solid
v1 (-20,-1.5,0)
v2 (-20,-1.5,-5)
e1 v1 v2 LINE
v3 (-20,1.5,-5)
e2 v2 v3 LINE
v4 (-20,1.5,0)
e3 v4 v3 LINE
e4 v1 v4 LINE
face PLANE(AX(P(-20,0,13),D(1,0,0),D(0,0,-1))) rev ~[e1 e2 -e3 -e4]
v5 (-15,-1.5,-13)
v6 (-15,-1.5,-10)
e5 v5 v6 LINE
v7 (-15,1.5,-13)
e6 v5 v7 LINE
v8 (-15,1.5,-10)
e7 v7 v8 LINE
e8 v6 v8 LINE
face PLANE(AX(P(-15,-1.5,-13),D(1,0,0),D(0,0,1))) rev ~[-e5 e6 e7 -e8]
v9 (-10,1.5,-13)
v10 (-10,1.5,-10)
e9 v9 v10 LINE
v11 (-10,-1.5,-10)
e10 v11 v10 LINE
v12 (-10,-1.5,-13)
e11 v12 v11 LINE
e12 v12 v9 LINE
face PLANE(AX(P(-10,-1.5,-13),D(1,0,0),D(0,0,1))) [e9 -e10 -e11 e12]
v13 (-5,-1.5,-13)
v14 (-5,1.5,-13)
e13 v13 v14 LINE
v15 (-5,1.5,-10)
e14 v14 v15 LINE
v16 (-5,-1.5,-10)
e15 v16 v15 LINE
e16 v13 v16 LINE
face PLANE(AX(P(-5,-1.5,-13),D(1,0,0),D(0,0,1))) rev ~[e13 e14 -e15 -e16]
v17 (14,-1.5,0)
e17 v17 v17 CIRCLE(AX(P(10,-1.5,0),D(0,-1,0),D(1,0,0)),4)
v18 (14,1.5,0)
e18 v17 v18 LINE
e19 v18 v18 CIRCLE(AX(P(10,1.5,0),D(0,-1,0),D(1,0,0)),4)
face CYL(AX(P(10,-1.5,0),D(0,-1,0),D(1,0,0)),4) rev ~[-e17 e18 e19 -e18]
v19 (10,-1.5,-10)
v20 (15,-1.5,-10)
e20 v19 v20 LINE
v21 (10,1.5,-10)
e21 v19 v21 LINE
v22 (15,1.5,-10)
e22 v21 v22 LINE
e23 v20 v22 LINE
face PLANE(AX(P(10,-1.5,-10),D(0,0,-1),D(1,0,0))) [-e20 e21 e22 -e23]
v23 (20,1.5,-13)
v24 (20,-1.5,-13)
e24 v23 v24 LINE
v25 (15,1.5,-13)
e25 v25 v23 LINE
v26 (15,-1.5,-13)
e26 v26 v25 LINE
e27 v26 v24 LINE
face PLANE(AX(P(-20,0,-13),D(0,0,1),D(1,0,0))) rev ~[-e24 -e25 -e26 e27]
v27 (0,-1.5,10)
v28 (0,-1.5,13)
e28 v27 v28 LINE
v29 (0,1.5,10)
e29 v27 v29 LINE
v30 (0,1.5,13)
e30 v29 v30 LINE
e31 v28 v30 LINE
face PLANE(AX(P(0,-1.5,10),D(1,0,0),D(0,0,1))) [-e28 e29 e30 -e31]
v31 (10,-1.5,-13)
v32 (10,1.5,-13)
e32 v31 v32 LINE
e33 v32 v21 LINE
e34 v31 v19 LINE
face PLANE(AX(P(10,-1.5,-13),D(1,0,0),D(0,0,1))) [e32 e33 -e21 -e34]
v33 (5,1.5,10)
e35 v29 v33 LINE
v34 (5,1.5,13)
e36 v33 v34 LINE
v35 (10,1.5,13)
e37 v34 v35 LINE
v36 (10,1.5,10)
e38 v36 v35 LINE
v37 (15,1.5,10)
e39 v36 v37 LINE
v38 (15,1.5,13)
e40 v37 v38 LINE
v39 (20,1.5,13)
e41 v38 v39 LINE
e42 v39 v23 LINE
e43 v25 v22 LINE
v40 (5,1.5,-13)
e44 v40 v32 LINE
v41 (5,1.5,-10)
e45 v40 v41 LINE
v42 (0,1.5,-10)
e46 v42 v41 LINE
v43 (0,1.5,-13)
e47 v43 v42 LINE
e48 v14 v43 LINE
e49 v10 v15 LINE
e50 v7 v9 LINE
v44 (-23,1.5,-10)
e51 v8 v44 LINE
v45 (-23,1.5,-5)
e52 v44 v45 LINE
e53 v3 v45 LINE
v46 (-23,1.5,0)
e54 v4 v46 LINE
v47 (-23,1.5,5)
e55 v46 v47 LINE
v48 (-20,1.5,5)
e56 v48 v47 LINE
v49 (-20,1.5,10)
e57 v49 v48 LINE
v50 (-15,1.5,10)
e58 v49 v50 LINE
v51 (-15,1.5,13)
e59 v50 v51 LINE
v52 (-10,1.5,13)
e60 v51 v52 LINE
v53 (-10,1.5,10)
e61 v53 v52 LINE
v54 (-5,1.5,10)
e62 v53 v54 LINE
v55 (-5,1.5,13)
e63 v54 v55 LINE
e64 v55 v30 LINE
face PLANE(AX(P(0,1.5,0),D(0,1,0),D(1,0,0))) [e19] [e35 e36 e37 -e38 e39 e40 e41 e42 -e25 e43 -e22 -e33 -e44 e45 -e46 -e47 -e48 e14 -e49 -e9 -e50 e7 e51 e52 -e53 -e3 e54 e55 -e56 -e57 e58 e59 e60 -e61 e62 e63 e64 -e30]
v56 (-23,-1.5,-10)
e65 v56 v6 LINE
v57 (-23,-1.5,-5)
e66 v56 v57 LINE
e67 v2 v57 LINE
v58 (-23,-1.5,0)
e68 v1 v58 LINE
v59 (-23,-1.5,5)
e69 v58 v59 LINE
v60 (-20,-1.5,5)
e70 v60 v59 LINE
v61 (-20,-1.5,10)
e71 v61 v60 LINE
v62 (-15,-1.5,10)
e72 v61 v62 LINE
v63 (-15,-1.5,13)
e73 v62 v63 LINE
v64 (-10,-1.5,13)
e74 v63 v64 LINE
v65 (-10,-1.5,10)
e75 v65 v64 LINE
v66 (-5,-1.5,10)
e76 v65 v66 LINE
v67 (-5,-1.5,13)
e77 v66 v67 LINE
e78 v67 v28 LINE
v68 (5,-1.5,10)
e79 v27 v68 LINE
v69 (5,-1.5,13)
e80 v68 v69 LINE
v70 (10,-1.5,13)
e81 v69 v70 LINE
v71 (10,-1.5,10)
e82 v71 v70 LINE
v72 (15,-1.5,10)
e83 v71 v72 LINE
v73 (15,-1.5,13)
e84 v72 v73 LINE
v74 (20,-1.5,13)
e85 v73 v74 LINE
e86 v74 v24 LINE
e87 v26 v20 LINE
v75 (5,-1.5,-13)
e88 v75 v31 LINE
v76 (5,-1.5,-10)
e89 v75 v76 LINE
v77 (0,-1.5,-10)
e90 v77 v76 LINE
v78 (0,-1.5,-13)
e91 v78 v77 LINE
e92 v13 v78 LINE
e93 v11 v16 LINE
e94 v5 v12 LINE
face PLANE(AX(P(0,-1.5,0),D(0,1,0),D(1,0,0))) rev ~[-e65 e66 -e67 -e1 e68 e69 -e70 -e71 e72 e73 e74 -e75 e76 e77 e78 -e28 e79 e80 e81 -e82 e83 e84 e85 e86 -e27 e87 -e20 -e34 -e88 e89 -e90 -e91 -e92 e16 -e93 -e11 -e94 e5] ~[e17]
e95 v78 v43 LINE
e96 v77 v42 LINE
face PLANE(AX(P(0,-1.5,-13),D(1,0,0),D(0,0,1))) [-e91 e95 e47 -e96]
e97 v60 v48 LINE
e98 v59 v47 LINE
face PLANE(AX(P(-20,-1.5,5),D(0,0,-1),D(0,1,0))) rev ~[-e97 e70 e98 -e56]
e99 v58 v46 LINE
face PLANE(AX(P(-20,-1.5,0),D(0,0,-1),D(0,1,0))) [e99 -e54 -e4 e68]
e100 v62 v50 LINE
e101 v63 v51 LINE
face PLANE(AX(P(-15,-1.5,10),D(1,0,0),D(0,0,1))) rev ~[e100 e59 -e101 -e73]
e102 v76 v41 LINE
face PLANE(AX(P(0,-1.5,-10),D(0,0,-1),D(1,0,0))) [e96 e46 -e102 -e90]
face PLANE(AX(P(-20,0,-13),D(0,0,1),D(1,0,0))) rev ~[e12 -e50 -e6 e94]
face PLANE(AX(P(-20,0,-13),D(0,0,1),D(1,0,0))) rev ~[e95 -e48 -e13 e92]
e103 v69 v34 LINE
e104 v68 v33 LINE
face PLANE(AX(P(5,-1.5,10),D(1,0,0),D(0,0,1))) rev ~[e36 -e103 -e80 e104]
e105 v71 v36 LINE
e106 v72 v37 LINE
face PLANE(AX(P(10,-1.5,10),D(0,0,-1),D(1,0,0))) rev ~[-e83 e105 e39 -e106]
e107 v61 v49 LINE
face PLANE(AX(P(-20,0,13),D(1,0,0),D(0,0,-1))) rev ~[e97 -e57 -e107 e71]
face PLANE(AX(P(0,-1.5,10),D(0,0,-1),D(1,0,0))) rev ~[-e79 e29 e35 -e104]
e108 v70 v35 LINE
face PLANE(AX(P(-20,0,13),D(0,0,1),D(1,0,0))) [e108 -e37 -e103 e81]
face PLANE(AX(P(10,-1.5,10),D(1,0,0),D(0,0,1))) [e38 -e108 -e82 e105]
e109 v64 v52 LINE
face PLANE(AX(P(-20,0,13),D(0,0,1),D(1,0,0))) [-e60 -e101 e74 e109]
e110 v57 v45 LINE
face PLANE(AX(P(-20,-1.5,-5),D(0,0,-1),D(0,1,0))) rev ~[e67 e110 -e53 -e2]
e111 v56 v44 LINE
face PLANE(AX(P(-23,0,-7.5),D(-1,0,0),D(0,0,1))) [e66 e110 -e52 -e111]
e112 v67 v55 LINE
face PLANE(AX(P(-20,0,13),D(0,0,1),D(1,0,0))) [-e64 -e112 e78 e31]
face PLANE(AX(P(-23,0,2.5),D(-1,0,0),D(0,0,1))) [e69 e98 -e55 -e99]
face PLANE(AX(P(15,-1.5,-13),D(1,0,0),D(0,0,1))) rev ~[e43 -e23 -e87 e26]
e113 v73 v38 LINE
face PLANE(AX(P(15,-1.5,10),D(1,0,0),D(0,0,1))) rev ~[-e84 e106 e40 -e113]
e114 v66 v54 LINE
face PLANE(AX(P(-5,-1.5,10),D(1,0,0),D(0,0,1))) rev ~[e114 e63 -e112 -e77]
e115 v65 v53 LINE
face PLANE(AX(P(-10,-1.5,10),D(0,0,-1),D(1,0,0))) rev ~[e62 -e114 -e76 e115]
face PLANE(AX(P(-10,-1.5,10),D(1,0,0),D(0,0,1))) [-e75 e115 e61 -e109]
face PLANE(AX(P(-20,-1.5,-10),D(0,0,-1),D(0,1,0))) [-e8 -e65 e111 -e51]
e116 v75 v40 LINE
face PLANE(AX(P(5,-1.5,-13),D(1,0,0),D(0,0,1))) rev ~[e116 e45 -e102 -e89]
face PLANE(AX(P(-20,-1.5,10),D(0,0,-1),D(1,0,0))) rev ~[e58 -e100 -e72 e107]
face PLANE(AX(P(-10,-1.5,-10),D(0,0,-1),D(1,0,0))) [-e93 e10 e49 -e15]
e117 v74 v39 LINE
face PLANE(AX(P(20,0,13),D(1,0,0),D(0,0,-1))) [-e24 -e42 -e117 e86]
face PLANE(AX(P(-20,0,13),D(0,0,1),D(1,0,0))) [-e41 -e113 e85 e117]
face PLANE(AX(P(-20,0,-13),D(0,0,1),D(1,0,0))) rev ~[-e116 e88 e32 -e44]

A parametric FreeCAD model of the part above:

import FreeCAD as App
import Part
import Sketcher
from FreeCAD import Vector


def add_polygon(sketch, points):
    """Adds a closed chain of lines whose ends are joined by coincident constraints."""
    first, n = sketch.GeometryCount, len(points)
    for a, b in zip(points, points[1:] + points[:1]):
        sketch.addGeometry(Part.LineSegment(App.Vector(*a, 0), App.Vector(*b, 0)), False)
    for i in range(n):
        sketch.addConstraint(Sketcher.Constraint("Coincident", first + i, 2, first + (i + 1) % n, 1))

doc = App.newDocument("Part")
params = doc.addObject("Spreadsheet::Sheet", "Params")
for row, (alias, value) in enumerate([
    ("sketch1_width", "40 mm"),
    ("sketch1_height", "26 mm"),
    ("pad1_length", "3 mm"),
    ("sketch2_diameter", "8 mm"),
    ("pocket1_length", "3 mm"),
    ("sketch3_width", "3 mm"),
    ("sketch3_height", "5 mm"),
    ("pad2_length", "3 mm"),
    ("sketch4_width", "5 mm"),
    ("sketch4_height", "3 mm"),
    ("pocket2_length", "3 mm"),
], start=1):
    params.set(f"A{row}", alias)
    params.set(f"B{row}", "=" + value)
    params.setAlias(f"B{row}", alias)

body = doc.addObject("PartDesign::Body", "Body")

sketch1 = doc.addObject("Sketcher::SketchObject", "Sketch")
body.addObject(sketch1)
sketch1.AttachmentSupport = (doc.XZ_Plane, [""])
sketch1.MapMode = "FlatFace"
add_polygon(sketch1, [(-20, -13), (-20, 13), (20, 13), (20, -13)])
sketch1.addConstraint(Sketcher.Constraint("Vertical", 0))
sketch1.addConstraint(Sketcher.Constraint("Horizontal", 1))
sketch1.addConstraint(Sketcher.Constraint("Vertical", 2))
sketch1.addConstraint(Sketcher.Constraint("Horizontal", 3))
sketch1.addConstraint(Sketcher.Constraint("Symmetric", 0, 2, 2, 2, -1, 1))
sketch1.addConstraint(Sketcher.Constraint("DistanceX", 1, 1, 1, 2, 40.0))
sketch1.addConstraint(Sketcher.Constraint("DistanceY", 0, 1, 0, 2, 26.0))
sketch1.setExpression("Constraints[9]", "Params.sketch1_width")
sketch1.setExpression("Constraints[10]", "Params.sketch1_height")
pad1 = doc.addObject("PartDesign::Pad", "Pad")
body.addObject(pad1)
pad1.Profile = sketch1
pad1.setExpression("Length", "Params.pad1_length")
pad1.Midplane = True

sketch2 = doc.addObject("Sketcher::SketchObject", "Sketch001")
body.addObject(sketch2)
sketch2.AttachmentSupport = (doc.XZ_Plane, [""])
sketch2.MapMode = "FlatFace"
sketch2.AttachmentOffset = App.Placement(Vector(0, 0, 1.5), App.Rotation())
sketch2.addGeometry(Part.Circle(Vector(10, 0, 0), Vector(0, 0, 1), 4), False)
sketch2.addConstraint(Sketcher.Constraint("PointOnObject", 0, 3, -1))
sketch2.addConstraint(Sketcher.Constraint("Diameter", 0, 8.0))
sketch2.addConstraint(Sketcher.Constraint("DistanceX", -1, 1, 0, 3, 10.0))
sketch2.setExpression("Constraints[1]", "Params.sketch2_diameter")
pocket1 = doc.addObject("PartDesign::Pocket", "Pocket")
body.addObject(pocket1)
pocket1.Profile = sketch2
pocket1.setExpression("Length", "Params.pocket1_length")

sketch3 = doc.addObject("Sketcher::SketchObject", "Sketch002")
body.addObject(sketch3)
sketch3.AttachmentSupport = (doc.YZ_Plane, [""])
sketch3.MapMode = "FlatFace"
sketch3.AttachmentOffset = App.Placement(Vector(0, 0, -20), App.Rotation())
add_polygon(sketch3, [(1.5, -10), (-1.5, -10), (-1.5, -5), (1.5, -5)])
add_polygon(sketch3, [(1.5, 0), (-1.5, 0), (-1.5, 5), (1.5, 5)])
sketch3.addConstraint(Sketcher.Constraint("Horizontal", 0))
sketch3.addConstraint(Sketcher.Constraint("Vertical", 1))
sketch3.addConstraint(Sketcher.Constraint("Horizontal", 2))
sketch3.addConstraint(Sketcher.Constraint("Vertical", 3))
sketch3.addConstraint(Sketcher.Constraint("Horizontal", 4))
sketch3.addConstraint(Sketcher.Constraint("Vertical", 5))
sketch3.addConstraint(Sketcher.Constraint("Horizontal", 6))
sketch3.addConstraint(Sketcher.Constraint("Vertical", 7))
sketch3.addConstraint(Sketcher.Constraint("Symmetric", 2, 2, 5, 2, -1, 1))
sketch3.addConstraint(Sketcher.Constraint("Symmetric", 4, 2, 7, 2, -1, 1))
sketch3.addConstraint(Sketcher.Constraint("Vertical", 1, 2, 4, 2))
sketch3.addConstraint(Sketcher.Constraint("Equal", 3, 5))
sketch3.addConstraint(Sketcher.Constraint("DistanceX", 0, 2, 0, 1, 3.0))
sketch3.addConstraint(Sketcher.Constraint("DistanceY", 1, 1, 1, 2, 5.0))
sketch3.setExpression("Constraints[20]", "Params.sketch3_width")
sketch3.setExpression("Constraints[21]", "Params.sketch3_height")
pad2 = doc.addObject("PartDesign::Pad", "Pad001")
body.addObject(pad2)
pad2.Profile = sketch3
pad2.setExpression("Length", "Params.pad2_length")
pad2.Reversed = True

sketch4 = doc.addObject("Sketcher::SketchObject", "Sketch003")
body.addObject(sketch4)
sketch4.AttachmentSupport = (doc.XZ_Plane, [""])
sketch4.MapMode = "FlatFace"
sketch4.AttachmentOffset = App.Placement(Vector(0, 0, 1.5), App.Rotation())
add_polygon(sketch4, [(-20, -10), (-20, -13), (-15, -13), (-15, -10)])
add_polygon(sketch4, [(-10, -10), (-10, -13), (-5, -13), (-5, -10)])
add_polygon(sketch4, [(-20, 13), (-20, 10), (-15, 10), (-15, 13)])
add_polygon(sketch4, [(-10, 13), (-10, 10), (-5, 10), (-5, 13)])
add_polygon(sketch4, [(0, 13), (0, 10), (5, 10), (5, 13)])
add_polygon(sketch4, [(10, 13), (10, 10), (15, 10), (15, 13)])
add_polygon(sketch4, [(0, -10), (0, -13), (5, -13), (5, -10)])
add_polygon(sketch4, [(10, -10), (10, -13), (15, -13), (15, -10)])
sketch4.addConstraint(Sketcher.Constraint("Vertical", 0))
sketch4.addConstraint(Sketcher.Constraint("Horizontal", 1))
sketch4.addConstraint(Sketcher.Constraint("Vertical", 2))
sketch4.addConstraint(Sketcher.Constraint("Horizontal", 3))
sketch4.addConstraint(Sketcher.Constraint("Vertical", 4))
sketch4.addConstraint(Sketcher.Constraint("Horizontal", 5))
sketch4.addConstraint(Sketcher.Constraint("Vertical", 6))
sketch4.addConstraint(Sketcher.Constraint("Horizontal", 7))
sketch4.addConstraint(Sketcher.Constraint("Vertical", 8))
sketch4.addConstraint(Sketcher.Constraint("Horizontal", 9))
sketch4.addConstraint(Sketcher.Constraint("Vertical", 10))
sketch4.addConstraint(Sketcher.Constraint("Horizontal", 11))
sketch4.addConstraint(Sketcher.Constraint("Vertical", 12))
sketch4.addConstraint(Sketcher.Constraint("Horizontal", 13))
sketch4.addConstraint(Sketcher.Constraint("Vertical", 14))
sketch4.addConstraint(Sketcher.Constraint("Horizontal", 15))
sketch4.addConstraint(Sketcher.Constraint("Vertical", 16))
sketch4.addConstraint(Sketcher.Constraint("Horizontal", 17))
sketch4.addConstraint(Sketcher.Constraint("Vertical", 18))
sketch4.addConstraint(Sketcher.Constraint("Horizontal", 19))
sketch4.addConstraint(Sketcher.Constraint("Vertical", 20))
sketch4.addConstraint(Sketcher.Constraint("Horizontal", 21))
sketch4.addConstraint(Sketcher.Constraint("Vertical", 22))
sketch4.addConstraint(Sketcher.Constraint("Horizontal", 23))
sketch4.addConstraint(Sketcher.Constraint("Vertical", 24))
sketch4.addConstraint(Sketcher.Constraint("Horizontal", 25))
sketch4.addConstraint(Sketcher.Constraint("Vertical", 26))
sketch4.addConstraint(Sketcher.Constraint("Horizontal", 27))
sketch4.addConstraint(Sketcher.Constraint("Vertical", 28))
sketch4.addConstraint(Sketcher.Constraint("Horizontal", 29))
sketch4.addConstraint(Sketcher.Constraint("Vertical", 30))
sketch4.addConstraint(Sketcher.Constraint("Horizontal", 31))
sketch4.addConstraint(Sketcher.Constraint("Symmetric", 6, 2, 17, 2, -1, 1))
sketch4.addConstraint(Sketcher.Constraint("Symmetric", 7, 2, 20, 2, -1, 1))
sketch4.addConstraint(Sketcher.Constraint("Symmetric", 2, 2, 21, 2, -1, 1))
sketch4.addConstraint(Sketcher.Constraint("Symmetric", 19, 2, 24, 2, -1, 1))
sketch4.addConstraint(Sketcher.Constraint("Symmetric", 14, 2, 25, 2, -1, 1))
sketch4.addConstraint(Sketcher.Constraint("Symmetric", 15, 2, 28, 2, -1, 1))
sketch4.addConstraint(Sketcher.Constraint("Symmetric", 10, 2, 29, 2, -1, 1))
sketch4.addConstraint(Sketcher.Constraint("Symmetric", 13, 2, 17, 2, -2))
sketch4.addConstraint(Sketcher.Constraint("Symmetric", 9, 2, 21, 2, -2))
sketch4.addConstraint(Sketcher.Constraint("Symmetric", 15, 2, 23, 2, -2))
sketch4.addConstraint(Sketcher.Constraint("Symmetric", 0, 2, 11, 2, -1))
sketch4.addConstraint(Sketcher.Constraint("Symmetric", 16, 2, 27, 2, -1))
sketch4.addConstraint(Sketcher.Constraint("Horizontal", 1, 2, 4, 2))
sketch4.addConstraint(Sketcher.Constraint("Horizontal", 27, 2, 30, 2))
sketch4.addConstraint(Sketcher.Constraint("Equal", 3, 5))
sketch4.addConstraint(Sketcher.Constraint("Equal", 15, 17))
sketch4.addConstraint(Sketcher.Constraint("Equal", 19, 21))
sketch4.addConstraint(Sketcher.Constraint("DistanceX", 1, 1, 1, 2, 5.0))
sketch4.addConstraint(Sketcher.Constraint("DistanceY", 0, 2, 0, 1, 3.0))
sketch4.addConstraint(Sketcher.Constraint("DistanceY", 0, 2, -1, 1, 13.0))
sketch4.setExpression("Constraints[81]", "Params.sketch4_width")
sketch4.setExpression("Constraints[82]", "Params.sketch4_height")
pocket2 = doc.addObject("PartDesign::Pocket", "Pocket001")
body.addObject(pocket2)
pocket2.Profile = sketch4
pocket2.setExpression("Length", "Params.pocket2_length")

doc.recompute()
